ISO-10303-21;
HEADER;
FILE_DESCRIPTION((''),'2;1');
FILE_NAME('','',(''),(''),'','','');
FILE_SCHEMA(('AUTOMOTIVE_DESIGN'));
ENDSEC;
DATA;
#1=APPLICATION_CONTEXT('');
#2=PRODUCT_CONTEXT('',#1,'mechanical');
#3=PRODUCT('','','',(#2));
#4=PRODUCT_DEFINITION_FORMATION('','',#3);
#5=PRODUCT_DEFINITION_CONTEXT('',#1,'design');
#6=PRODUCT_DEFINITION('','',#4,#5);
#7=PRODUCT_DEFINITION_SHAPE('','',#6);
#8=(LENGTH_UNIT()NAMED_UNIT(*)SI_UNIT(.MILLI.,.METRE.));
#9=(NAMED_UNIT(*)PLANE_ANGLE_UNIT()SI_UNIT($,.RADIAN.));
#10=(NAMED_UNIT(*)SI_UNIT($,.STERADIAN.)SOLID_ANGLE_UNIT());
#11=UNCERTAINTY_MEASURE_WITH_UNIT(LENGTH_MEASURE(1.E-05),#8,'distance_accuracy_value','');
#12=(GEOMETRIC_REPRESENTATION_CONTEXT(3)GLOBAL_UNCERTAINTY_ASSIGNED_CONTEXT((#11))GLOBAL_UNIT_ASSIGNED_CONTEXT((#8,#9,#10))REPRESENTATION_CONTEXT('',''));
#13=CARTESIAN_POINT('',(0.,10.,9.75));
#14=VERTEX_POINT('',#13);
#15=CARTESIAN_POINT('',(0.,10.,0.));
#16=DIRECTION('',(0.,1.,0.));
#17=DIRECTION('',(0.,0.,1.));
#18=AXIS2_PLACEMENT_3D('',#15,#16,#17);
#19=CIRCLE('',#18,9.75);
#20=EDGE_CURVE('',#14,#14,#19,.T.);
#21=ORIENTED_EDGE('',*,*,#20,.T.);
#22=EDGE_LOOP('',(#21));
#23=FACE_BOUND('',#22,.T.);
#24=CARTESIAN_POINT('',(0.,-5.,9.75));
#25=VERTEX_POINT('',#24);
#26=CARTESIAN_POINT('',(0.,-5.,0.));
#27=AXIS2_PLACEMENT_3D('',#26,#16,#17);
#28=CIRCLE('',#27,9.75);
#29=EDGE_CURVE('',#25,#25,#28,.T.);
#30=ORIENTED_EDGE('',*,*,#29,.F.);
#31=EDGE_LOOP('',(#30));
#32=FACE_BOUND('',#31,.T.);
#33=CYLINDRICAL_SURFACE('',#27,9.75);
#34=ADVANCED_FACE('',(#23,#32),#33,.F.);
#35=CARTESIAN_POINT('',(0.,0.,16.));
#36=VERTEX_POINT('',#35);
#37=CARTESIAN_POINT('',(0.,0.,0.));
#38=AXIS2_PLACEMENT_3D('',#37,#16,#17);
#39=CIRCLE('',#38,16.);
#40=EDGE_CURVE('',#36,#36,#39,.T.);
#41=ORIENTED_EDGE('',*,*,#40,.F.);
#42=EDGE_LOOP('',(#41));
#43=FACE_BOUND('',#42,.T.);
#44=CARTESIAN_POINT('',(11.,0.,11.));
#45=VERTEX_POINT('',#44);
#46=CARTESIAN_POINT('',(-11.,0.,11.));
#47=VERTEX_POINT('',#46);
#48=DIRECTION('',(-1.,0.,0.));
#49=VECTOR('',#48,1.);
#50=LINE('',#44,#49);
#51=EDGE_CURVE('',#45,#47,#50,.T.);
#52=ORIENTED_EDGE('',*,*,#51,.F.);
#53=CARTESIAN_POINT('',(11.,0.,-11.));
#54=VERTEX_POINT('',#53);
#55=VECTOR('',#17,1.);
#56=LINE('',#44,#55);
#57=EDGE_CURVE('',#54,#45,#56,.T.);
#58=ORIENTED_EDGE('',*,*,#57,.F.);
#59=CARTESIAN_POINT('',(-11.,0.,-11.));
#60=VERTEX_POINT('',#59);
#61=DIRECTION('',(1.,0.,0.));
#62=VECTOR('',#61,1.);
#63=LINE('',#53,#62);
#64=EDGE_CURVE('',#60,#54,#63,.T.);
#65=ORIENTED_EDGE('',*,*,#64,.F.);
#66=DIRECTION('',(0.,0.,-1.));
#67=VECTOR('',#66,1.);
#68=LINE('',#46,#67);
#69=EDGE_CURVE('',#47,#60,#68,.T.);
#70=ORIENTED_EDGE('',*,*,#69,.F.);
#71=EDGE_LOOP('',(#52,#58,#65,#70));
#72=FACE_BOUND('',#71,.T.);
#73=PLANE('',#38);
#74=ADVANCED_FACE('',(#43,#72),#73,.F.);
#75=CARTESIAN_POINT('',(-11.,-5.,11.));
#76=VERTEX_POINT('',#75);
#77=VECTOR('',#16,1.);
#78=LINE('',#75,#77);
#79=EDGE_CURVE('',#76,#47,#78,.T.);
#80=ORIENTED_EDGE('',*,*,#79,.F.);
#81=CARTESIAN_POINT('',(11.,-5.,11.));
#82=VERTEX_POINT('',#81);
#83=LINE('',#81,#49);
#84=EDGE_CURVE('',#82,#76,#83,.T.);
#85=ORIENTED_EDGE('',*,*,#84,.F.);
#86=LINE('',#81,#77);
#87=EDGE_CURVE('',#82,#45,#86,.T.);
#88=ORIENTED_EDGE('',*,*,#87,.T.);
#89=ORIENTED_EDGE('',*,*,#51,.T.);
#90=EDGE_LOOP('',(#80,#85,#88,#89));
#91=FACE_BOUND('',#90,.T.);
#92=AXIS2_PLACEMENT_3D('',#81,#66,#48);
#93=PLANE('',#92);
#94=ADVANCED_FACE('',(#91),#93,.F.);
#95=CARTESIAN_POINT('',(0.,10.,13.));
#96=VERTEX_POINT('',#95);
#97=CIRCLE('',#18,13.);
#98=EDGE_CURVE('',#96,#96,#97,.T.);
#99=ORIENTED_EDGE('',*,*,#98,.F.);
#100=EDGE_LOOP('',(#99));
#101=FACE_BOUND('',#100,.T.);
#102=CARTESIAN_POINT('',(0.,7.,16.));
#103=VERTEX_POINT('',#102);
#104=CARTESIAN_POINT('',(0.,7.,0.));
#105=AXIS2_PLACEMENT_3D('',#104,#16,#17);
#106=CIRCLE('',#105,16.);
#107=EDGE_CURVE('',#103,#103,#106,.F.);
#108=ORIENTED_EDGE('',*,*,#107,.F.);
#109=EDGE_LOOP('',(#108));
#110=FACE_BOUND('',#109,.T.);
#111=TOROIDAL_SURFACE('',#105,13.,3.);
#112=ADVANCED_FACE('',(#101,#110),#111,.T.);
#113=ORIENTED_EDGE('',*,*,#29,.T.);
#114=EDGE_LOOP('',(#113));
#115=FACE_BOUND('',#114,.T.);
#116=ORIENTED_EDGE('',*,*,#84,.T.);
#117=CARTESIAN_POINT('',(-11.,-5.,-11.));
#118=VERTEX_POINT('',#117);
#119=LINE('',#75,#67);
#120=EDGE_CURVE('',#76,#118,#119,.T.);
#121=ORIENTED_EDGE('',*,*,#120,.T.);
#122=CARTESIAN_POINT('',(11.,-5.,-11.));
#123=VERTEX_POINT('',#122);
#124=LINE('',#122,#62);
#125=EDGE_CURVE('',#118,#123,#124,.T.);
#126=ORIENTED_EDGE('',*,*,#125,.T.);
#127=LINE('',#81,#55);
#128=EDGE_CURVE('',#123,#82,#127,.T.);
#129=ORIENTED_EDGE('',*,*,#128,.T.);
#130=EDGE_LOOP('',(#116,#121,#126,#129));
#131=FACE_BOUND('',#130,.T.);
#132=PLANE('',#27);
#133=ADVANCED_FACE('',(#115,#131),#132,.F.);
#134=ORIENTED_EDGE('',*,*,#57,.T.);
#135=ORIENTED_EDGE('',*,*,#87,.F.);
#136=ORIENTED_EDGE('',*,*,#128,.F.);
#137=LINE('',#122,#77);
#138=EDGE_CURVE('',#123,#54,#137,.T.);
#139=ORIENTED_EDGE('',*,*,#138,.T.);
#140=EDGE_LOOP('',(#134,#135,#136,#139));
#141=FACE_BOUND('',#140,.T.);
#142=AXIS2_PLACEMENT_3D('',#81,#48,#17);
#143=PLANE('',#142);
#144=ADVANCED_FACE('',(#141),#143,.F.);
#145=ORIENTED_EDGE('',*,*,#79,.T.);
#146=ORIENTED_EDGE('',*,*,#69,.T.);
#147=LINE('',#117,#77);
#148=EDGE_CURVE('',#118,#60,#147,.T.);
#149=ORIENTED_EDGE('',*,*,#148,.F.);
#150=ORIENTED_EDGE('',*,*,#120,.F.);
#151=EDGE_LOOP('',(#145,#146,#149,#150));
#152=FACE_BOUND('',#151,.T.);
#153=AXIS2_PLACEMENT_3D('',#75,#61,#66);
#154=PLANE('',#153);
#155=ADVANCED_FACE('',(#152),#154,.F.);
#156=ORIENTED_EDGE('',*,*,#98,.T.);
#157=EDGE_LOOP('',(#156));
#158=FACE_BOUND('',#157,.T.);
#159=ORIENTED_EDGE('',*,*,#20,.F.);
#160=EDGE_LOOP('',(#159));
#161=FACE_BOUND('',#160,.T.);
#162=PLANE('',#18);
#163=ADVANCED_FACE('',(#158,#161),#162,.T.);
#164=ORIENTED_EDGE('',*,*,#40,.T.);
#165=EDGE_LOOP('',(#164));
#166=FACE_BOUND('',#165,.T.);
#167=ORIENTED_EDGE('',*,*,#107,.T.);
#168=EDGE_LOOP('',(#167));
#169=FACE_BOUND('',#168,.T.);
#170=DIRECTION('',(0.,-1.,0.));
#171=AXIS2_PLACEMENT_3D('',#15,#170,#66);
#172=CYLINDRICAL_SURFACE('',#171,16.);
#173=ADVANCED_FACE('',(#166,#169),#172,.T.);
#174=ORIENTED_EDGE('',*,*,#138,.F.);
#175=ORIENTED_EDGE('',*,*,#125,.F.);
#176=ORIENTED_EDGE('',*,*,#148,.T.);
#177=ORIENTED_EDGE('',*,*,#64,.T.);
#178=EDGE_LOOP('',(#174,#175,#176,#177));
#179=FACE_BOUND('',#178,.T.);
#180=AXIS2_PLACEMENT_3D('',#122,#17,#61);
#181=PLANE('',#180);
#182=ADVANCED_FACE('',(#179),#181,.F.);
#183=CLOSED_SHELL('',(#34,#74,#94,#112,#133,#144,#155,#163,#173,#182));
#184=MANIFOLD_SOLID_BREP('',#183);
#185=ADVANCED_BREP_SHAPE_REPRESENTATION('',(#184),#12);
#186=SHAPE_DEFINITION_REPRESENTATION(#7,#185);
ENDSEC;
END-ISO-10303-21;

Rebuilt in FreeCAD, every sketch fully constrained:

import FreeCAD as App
import Part
import Sketcher

V = App.Vector


def edges_at(feature, points):
    """Names of the edges that pass closest to the given points."""
    edges = feature.Shape.Edges
    near = lambda p: min(range(len(edges)), key=lambda i: edges[i].distToShape(Part.Vertex(*p))[0])
    return sorted({f"Edge{near(p) + 1}" for p in points})

doc = App.newDocument("Part")
body = doc.addObject("PartDesign::Body", "Body")

sketch1 = doc.addObject("Sketcher::SketchObject", "Sketch")
body.addObject(sketch1)
sketch1.AttachmentSupport = (doc.XZ_Plane, [""])
sketch1.MapMode = "FlatFace"
sketch1.addGeometry(Part.Circle(V(0, 0, 0), V(0, 0, 1), 16), False)
sketch1.addConstraint(Sketcher.Constraint("Coincident", 0, 3, -1, 1))
sketch1.addConstraint(Sketcher.Constraint("Diameter", 0, 32.0))
pad1 = doc.addObject("PartDesign::Pad", "Pad")
body.addObject(pad1)
pad1.Profile = sketch1
pad1.Length = 10
pad1.Reversed = True

sketch2 = doc.addObject("Sketcher::SketchObject", "Sketch001")
body.addObject(sketch2)
sketch2.AttachmentSupport = (doc.XZ_Plane, [""])
sketch2.MapMode = "FlatFace"
sketch2.addGeometry(Part.LineSegment(V(-11, 11, 0), V(-11, -11, 0)), False)
sketch2.addGeometry(Part.LineSegment(V(-11, -11, 0), V(11, -11, 0)), False)
sketch2.addGeometry(Part.LineSegment(V(11, -11, 0), V(11, 11, 0)), False)
sketch2.addGeometry(Part.LineSegment(V(11, 11, 0), V(-11, 11, 0)), False)
sketch2.addConstraint(Sketcher.Constraint("Coincident", 0, 2, 1, 1))
sketch2.addConstraint(Sketcher.Constraint("Coincident", 1, 2, 2, 1))
sketch2.addConstraint(Sketcher.Constraint("Coincident", 2, 2, 3, 1))
sketch2.addConstraint(Sketcher.Constraint("Coincident", 3, 2, 0, 1))
sketch2.addConstraint(Sketcher.Constraint("Vertical", 0))
sketch2.addConstraint(Sketcher.Constraint("Horizontal", 1))
sketch2.addConstraint(Sketcher.Constraint("Vertical", 2))
sketch2.addConstraint(Sketcher.Constraint("Horizontal", 3))
sketch2.addConstraint(Sketcher.Constraint("Symmetric", 0, 2, 2, 2, -1, 1))
sketch2.addConstraint(Sketcher.Constraint("Equal", 3, 0))
sketch2.addConstraint(Sketcher.Constraint("DistanceX", 1, 1, 1, 2, 22.0))
pad2 = doc.addObject("PartDesign::Pad", "Pad001")
body.addObject(pad2)
pad2.Profile = sketch2
pad2.Length = 5

sketch3 = doc.addObject("Sketcher::SketchObject", "Sketch002")
body.addObject(sketch3)
sketch3.AttachmentSupport = (doc.XZ_Plane, [""])
sketch3.MapMode = "FlatFace"
sketch3.AttachmentOffset = App.Placement(V(0, 0, -10), App.Rotation())
sketch3.addGeometry(Part.Circle(V(0, 0, 0), V(0, 0, 1), 10), False)
sketch3.addConstraint(Sketcher.Constraint("Coincident", 0, 3, -1, 1))
sketch3.addConstraint(Sketcher.Constraint("Diameter", 0, 19.5))
pocket1 = doc.addObject("PartDesign::Pocket", "Pocket")
body.addObject(pocket1)
pocket1.Profile = sketch3
pocket1.Type = "ThroughAll"
pocket1.Reversed = True
doc.recompute()

fillet = doc.addObject("PartDesign::Fillet", "Fillet")
body.addObject(fillet)
fillet.Base = (pocket1, edges_at(pocket1, [(0, 10, -16)]))
fillet.Radius = 3

doc.recompute()
